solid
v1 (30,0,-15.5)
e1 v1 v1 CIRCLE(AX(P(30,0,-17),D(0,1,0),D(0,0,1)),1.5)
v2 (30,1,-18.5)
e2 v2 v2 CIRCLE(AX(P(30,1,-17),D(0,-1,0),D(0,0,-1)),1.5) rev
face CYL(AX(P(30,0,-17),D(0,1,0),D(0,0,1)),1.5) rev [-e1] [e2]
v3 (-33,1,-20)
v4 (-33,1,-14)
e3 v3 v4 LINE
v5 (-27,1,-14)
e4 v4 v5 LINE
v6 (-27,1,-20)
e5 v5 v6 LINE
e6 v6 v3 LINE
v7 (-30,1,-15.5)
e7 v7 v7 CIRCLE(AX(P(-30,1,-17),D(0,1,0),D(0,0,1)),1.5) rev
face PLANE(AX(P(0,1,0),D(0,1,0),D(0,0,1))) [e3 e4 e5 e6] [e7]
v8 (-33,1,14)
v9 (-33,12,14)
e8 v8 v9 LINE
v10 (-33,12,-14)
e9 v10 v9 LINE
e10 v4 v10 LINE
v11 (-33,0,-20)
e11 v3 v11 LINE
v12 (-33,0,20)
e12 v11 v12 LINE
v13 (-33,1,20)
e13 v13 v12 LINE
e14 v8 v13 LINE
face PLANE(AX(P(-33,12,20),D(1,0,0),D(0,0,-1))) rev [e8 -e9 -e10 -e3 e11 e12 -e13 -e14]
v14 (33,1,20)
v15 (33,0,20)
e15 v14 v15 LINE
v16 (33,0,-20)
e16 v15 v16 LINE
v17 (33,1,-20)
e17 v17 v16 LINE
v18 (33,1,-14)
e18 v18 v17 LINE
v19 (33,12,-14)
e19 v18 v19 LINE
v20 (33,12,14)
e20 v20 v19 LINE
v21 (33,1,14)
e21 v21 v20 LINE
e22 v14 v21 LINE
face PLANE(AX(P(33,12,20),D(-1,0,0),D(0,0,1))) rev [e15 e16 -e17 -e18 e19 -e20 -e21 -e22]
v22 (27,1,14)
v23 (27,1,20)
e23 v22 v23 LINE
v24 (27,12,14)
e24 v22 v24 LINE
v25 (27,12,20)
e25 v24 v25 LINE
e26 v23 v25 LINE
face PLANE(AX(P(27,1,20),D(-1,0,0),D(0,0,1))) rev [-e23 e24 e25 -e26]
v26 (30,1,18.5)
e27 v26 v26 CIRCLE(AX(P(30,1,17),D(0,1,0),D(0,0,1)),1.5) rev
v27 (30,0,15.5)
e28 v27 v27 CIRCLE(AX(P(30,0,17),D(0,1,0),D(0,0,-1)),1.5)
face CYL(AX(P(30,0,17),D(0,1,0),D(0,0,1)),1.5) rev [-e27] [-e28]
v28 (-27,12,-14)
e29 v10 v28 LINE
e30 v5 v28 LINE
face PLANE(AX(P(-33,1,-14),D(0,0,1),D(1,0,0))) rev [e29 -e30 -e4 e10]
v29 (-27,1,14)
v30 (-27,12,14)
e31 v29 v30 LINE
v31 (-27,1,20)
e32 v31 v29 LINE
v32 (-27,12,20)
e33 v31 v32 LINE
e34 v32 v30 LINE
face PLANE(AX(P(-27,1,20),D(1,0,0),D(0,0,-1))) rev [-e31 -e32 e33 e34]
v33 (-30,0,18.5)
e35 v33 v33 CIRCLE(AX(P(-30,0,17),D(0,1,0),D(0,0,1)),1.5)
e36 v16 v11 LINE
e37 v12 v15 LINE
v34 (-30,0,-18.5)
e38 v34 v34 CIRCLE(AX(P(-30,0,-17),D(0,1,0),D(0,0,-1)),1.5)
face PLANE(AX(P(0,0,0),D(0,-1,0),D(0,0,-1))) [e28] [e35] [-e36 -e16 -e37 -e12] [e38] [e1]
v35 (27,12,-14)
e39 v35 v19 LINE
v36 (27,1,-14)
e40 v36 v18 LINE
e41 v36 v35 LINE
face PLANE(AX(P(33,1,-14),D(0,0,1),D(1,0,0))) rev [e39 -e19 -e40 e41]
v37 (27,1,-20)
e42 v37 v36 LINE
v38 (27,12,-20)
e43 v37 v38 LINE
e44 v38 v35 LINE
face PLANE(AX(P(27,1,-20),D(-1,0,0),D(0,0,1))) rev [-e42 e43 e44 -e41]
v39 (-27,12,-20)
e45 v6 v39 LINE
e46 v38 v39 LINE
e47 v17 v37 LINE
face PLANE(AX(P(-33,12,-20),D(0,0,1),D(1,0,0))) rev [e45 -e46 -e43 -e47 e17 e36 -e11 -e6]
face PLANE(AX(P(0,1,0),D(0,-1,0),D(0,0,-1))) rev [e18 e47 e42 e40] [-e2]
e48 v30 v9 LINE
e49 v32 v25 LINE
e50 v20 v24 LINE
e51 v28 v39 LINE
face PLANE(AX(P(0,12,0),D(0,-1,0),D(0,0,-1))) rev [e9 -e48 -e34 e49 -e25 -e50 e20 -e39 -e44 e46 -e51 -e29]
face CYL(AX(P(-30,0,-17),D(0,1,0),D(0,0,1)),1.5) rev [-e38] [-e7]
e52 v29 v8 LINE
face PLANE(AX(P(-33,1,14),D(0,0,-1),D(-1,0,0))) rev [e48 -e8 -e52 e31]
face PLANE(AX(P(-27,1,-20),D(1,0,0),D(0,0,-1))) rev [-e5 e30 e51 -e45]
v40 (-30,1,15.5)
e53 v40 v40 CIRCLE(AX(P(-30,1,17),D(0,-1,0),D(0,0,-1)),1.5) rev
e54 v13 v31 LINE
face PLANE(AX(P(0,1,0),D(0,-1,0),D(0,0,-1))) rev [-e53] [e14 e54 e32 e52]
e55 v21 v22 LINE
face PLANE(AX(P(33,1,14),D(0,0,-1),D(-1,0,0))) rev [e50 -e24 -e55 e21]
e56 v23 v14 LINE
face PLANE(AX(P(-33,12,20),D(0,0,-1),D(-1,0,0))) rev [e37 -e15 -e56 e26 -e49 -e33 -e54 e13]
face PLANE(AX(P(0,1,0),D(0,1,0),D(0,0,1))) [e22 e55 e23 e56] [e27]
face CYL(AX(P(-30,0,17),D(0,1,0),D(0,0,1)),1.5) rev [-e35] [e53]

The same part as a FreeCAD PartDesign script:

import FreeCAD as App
import Part
import Sketcher

V = App.Vector

doc = App.newDocument("Part")
body = doc.addObject("PartDesign::Body", "Body")

sketch1 = body.newObject("Sketcher::SketchObject", "Sketch")
sketch1.AttachmentSupport = (doc.getObject("XZ_Plane"), [""])
sketch1.MapMode = "FlatFace"
sketch1.addGeometry([
    Part.LineSegment(V(-33, -20, 0), V(-33, 20, 0)),
    Part.LineSegment(V(-33, 20, 0), V(33, 20, 0)),
    Part.LineSegment(V(33, 20, 0), V(33, -20, 0)),
    Part.LineSegment(V(33, -20, 0), V(-33, -20, 0)),
], False)
sketch1.addConstraint([
    Sketcher.Constraint("Coincident", 0, 2, 1, 1),
    Sketcher.Constraint("Coincident", 1, 2, 2, 1),
    Sketcher.Constraint("Coincident", 2, 2, 3, 1),
    Sketcher.Constraint("Coincident", 3, 2, 0, 1),
    Sketcher.Constraint("Vertical", 0),
    Sketcher.Constraint("Horizontal", 1),
    Sketcher.Constraint("Vertical", 2),
    Sketcher.Constraint("Horizontal", 3),
    Sketcher.Constraint("Symmetric", 0, 2, 2, 2, -1, 1),
    Sketcher.Constraint("DistanceX", 1, 1, 1, 2, 66.0),
    Sketcher.Constraint("DistanceY", 0, 1, 0, 2, 40.0),
])
pad1 = body.newObject("PartDesign::Pad", "Pad")
pad1.Profile = sketch1
pad1.Length = 12
pad1.Reversed = True

sketch2 = body.newObject("Sketcher::SketchObject", "Sketch001")
sketch2.AttachmentSupport = (doc.getObject("XZ_Plane"), [""])
sketch2.MapMode = "FlatFace"
sketch2.AttachmentOffset = App.Placement(V(0, 0, -12), App.Rotation())
sketch2.addGeometry([
    Part.Circle(V(-30, 17, 0), V(0, 0, 1), 1.5),
    Part.Circle(V(30, 17, 0), V(0, 0, 1), 1.5),
    Part.Circle(V(30, -17, 0), V(0, 0, 1), 1.5),
    Part.Circle(V(-30, -17, 0), V(0, 0, 1), 1.5),
], False)
sketch2.addConstraint([
    Sketcher.Constraint("Equal", 0, 1),
    Sketcher.Constraint("Equal", 1, 2),
    Sketcher.Constraint("Equal", 2, 3),
    Sketcher.Constraint("Symmetric", 0, 3, 2, 3, -1, 1),
    Sketcher.Constraint("Symmetric", 1, 3, 3, 3, -1, 1),
    Sketcher.Constraint("Symmetric", 0, 3, 1, 3, -2),
    Sketcher.Constraint("Diameter", 0, 3.0),
    Sketcher.Constraint("DistanceX", 0, 3, -1, 1, 30.0),
    Sketcher.Constraint("DistanceY", -1, 1, 0, 3, 17.0),
])
pocket1 = body.newObject("PartDesign::Pocket", "Pocket")
pocket1.Profile = sketch2
pocket1.Type = "ThroughAll"
pocket1.Reversed = True

sketch3 = body.newObject("Sketcher::SketchObject", "Sketch002")
sketch3.AttachmentSupport = (doc.getObject("XZ_Plane"), [""])
sketch3.MapMode = "FlatFace"
sketch3.AttachmentOffset = App.Placement(V(0, 0, -12), App.Rotation())
sketch3.addGeometry([
    Part.LineSegment(V(-33, -20, 0), V(-33, -14, 0)),
    Part.LineSegment(V(-33, -14, 0), V(-27, -14, 0)),
    Part.LineSegment(V(-27, -14, 0), V(-27, -20, 0)),
    Part.LineSegment(V(-27, -20, 0), V(-33, -20, 0)),
    Part.LineSegment(V(27, -20, 0), V(27, -14, 0)),
    Part.LineSegment(V(27, -14, 0), V(33, -14, 0)),
    Part.LineSegment(V(33, -14, 0), V(33, -20, 0)),
    Part.LineSegment(V(33, -20, 0), V(27, -20, 0)),
    Part.LineSegment(V(27, 14, 0), V(27, 20, 0)),
    Part.LineSegment(V(27, 20, 0), V(33, 20, 0)),
    Part.LineSegment(V(33, 20, 0), V(33, 14, 0)),
    Part.LineSegment(V(33, 14, 0), V(27, 14, 0)),
    Part.LineSegment(V(-33, 14, 0), V(-33, 20, 0)),
    Part.LineSegment(V(-33, 20, 0), V(-27, 20, 0)),
    Part.LineSegment(V(-27, 20, 0), V(-27, 14, 0)),
    Part.LineSegment(V(-27, 14, 0), V(-33, 14, 0)),
], False)
sketch3.addConstraint([
    Sketcher.Constraint("Coincident", 0, 2, 1, 1),
    Sketcher.Constraint("Coincident", 1, 2, 2, 1),
    Sketcher.Constraint("Coincident", 2, 2, 3, 1),
    Sketcher.Constraint("Coincident", 3, 2, 0, 1),
    Sketcher.Constraint("Coincident", 4, 2, 5, 1),
    Sketcher.Constraint("Coincident", 5, 2, 6, 1),
    Sketcher.Constraint("Coincident", 6, 2, 7, 1),
    Sketcher.Constraint("Coincident", 7, 2, 4, 1),
    Sketcher.Constraint("Coincident", 8, 2, 9, 1),
    Sketcher.Constraint("Coincident", 9, 2, 10, 1),
    Sketcher.Constraint("Coincident", 10, 2, 11, 1),
    Sketcher.Constraint("Coincident", 11, 2, 8, 1),
    Sketcher.Constraint("Coincident", 12, 2, 13, 1),
    Sketcher.Constraint("Coincident", 13, 2, 14, 1),
    Sketcher.Constraint("Coincident", 14, 2, 15, 1),
    Sketcher.Constraint("Coincident", 15, 2, 12, 1),
    Sketcher.Constraint("Vertical", 0),
    Sketcher.Constraint("Horizontal", 1),
    Sketcher.Constraint("Vertical", 2),
    Sketcher.Constraint("Horizontal", 3),
    Sketcher.Constraint("Vertical", 4),
    Sketcher.Constraint("Horizontal", 5),
    Sketcher.Constraint("Vertical", 6),
    Sketcher.Constraint("Horizontal", 7),
    Sketcher.Constraint("Vertical", 8),
    Sketcher.Constraint("Horizontal", 9),
    Sketcher.Constraint("Vertical", 10),
    Sketcher.Constraint("Horizontal", 11),
    Sketcher.Constraint("Vertical", 12),
    Sketcher.Constraint("Horizontal", 13),
    Sketcher.Constraint("Vertical", 14),
    Sketcher.Constraint("Horizontal", 15),
    Sketcher.Constraint("Symmetric", 2, 2, 8, 2, -1, 1),
    Sketcher.Constraint("Symmetric", 0, 2, 10, 2, -1, 1),
    Sketcher.Constraint("Symmetric", 6, 2, 12, 2, -1, 1),
    Sketcher.Constraint("Symmetric", 4, 2, 14, 2, -1, 1),
    Sketcher.Constraint("Symmetric", 1, 2, 4, 2, -2),
    Sketcher.Constraint("Symmetric", 3, 2, 6, 2, -2),
    Sketcher.Constraint("Equal", 15, 0),
    Sketcher.Constraint("DistanceX", 1, 1, 1, 2, 6.0),
    Sketcher.Constraint("DistanceX", 0, 2, -1, 1, 33.0),
    Sketcher.Constraint("DistanceY", 0, 2, -1, 1, 14.0),
])
pocket2 = body.newObject("PartDesign::Pocket", "Pocket001")
pocket2.Profile = sketch3
pocket2.Length = 11
pocket2.Reversed = True

doc.recompute()
